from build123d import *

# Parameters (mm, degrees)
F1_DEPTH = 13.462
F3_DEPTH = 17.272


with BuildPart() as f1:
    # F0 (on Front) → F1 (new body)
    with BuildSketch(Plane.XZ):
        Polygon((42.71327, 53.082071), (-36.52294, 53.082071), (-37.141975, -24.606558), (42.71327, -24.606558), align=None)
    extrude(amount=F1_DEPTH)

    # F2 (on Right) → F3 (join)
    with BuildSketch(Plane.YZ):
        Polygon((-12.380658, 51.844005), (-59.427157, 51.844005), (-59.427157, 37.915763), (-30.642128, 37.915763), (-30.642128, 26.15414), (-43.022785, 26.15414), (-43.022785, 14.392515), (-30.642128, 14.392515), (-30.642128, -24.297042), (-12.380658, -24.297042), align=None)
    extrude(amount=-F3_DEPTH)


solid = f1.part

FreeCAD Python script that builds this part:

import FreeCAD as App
import Part
import Sketcher

V = App.Vector
Q = App.Units.Quantity


def add_polygon(sketch, points):
    """Adds a closed chain of lines whose ends are joined by coincident constraints."""
    first, n = sketch.GeometryCount, len(points)
    for a, b in zip(points, points[1:] + points[:1]):
        sketch.addGeometry(Part.LineSegment(App.Vector(*a, 0), App.Vector(*b, 0)), False)
    for i in range(n):
        sketch.addConstraint(Sketcher.Constraint("Coincident", first + i, 2, first + (i + 1) % n, 1))

doc = App.newDocument("Part")
body = doc.addObject("PartDesign::Body", "Body")

# Sketch on XZ plane
sketch1 = body.newObject("Sketcher::SketchObject", "Sketch")
sketch1.AttachmentSupport = (doc.getObject("XZ_Plane"), [""])
sketch1.MapMode = "FlatFace"
add_polygon(sketch1, [(43, 53), (-37, 53), (-37, -25), (43, -25)])  # lines 0-3
sketch1.addConstraint([
    Sketcher.Constraint("Horizontal", 0),
    Sketcher.Constraint("Horizontal", 2),
    Sketcher.Constraint("Vertical", 3),
    Sketcher.Constraint("DistanceX", 0, 2, 0, 1, Q("79.23621 mm")),
    Sketcher.Constraint("DistanceY", 3, 1, 3, 2, Q("77.688629 mm")),
    Sketcher.Constraint("DistanceX", 2, 1, 2, 2, Q("79.855245 mm")),
    Sketcher.Constraint("DistanceX", 0, 2, -1, 1, Q("36.52294 mm")),
    Sketcher.Constraint("DistanceY", -1, 1, 0, 2, Q("53.082071 mm")),
])
pad1 = body.newObject("PartDesign::Pad", "Pad")
pad1.Profile = sketch1
pad1.Length = Q("0.53 in")

# Sketch on YZ plane
sketch2 = body.newObject("Sketcher::SketchObject", "Sketch001")
sketch2.AttachmentSupport = (doc.getObject("YZ_Plane"), [""])
sketch2.MapMode = "FlatFace"
add_polygon(sketch2, [(-12, 52), (-59, 52), (-59, 38), (-31, 38), (-31, 26), (-43, 26), (-43, 14), (-31, 14), (-31, -24), (-12, -24)])  # lines 0-9
sketch2.addConstraint([
    Sketcher.Constraint("Horizontal", 0),
    Sketcher.Constraint("Vertical", 1),
    Sketcher.Constraint("Horizontal", 2),
    Sketcher.Constraint("Vertical", 3),
    Sketcher.Constraint("Horizontal", 4),
    Sketcher.Constraint("Vertical", 5),
    Sketcher.Constraint("Horizontal", 6),
    Sketcher.Constraint("Vertical", 7),
    Sketcher.Constraint("Horizontal", 8),
    Sketcher.Constraint("Vertical", 9),
    Sketcher.Constraint("Vertical", 3, 2, 6, 2),
    Sketcher.Constraint("DistanceX", 0, 2, 0, 1, Q("47.046499 mm")),
    Sketcher.Constraint("DistanceX", 2, 1, 2, 2, Q("28.785029 mm")),
    Sketcher.Constraint("DistanceX", 4, 2, 4, 1, Q("12.380657 mm")),
    Sketcher.Constraint("DistanceY", 1, 2, 1, 1, Q("13.928242 mm")),
    Sketcher.Constraint("DistanceY", 3, 2, 3, 1, Q("11.761623 mm")),
    Sketcher.Constraint("DistanceY", 5, 2, 5, 1, Q("11.761625 mm")),
    Sketcher.Constraint("DistanceY", 7, 2, 7, 1, Q("38.689557 mm")),
    Sketcher.Constraint("DistanceY", -1, 1, 3, 2, Q("26.15414 mm")),
    Sketcher.Constraint("DistanceX", 0, 2, -1, 1, Q("59.427157 mm")),
])
pad2 = body.newObject("PartDesign::Pad", "Pad001")
pad2.Profile = sketch2
pad2.Length = Q("0.68 in")
pad2.Reversed = True

doc.recompute()
